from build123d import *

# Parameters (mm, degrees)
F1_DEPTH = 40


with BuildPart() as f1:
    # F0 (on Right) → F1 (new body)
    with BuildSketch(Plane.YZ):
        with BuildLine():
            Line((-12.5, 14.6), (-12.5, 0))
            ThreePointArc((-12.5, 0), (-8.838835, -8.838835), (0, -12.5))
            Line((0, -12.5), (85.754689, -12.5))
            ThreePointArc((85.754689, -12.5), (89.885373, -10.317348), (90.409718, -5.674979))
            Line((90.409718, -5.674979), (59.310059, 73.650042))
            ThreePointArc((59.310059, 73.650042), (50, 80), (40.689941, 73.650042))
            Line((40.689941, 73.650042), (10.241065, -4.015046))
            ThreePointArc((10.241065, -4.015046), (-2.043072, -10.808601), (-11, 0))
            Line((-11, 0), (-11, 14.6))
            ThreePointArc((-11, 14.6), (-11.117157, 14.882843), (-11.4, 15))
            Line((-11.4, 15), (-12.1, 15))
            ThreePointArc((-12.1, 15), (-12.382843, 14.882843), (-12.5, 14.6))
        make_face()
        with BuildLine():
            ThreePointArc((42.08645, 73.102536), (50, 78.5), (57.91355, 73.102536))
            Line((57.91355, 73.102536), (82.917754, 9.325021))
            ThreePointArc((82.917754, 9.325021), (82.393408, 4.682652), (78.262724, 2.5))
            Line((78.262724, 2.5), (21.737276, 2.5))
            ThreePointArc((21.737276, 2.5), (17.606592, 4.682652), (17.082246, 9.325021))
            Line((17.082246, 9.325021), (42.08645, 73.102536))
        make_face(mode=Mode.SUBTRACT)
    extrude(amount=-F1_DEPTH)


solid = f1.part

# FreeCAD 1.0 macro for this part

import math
import FreeCAD as App
import Part
import Sketcher

V = App.Vector

doc = App.newDocument("Part")
body = doc.addObject("PartDesign::Body", "Body")

# Sketch on YZ plane
sketch1 = body.newObject("Sketcher::SketchObject", "Sketch")
sketch1.AttachmentSupport = (doc.getObject("YZ_Plane"), [""])
sketch1.MapMode = "FlatFace"
sketch1.addGeometry([
    Part.LineSegment(V(-12.5, 14.6, 0), V(-12.5, 0, 0)),  # 0
    Part.ArcOfCircle(Part.Circle(V(0, 0, 0), V(0, 0, 1), 12.5), math.radians(180), math.radians(270)),  # 1
    Part.LineSegment(V(0, -12.5, 0), V(85.75, -12.5, 0)),  # 2
    Part.ArcOfCircle(Part.Circle(V(85.75, -7.5, 0), V(0, 0, 1), 5), math.radians(-90), math.radians(21)),  # 3
    Part.LineSegment(V(90.41, -5.67, 0), V(59.31, 73.65, 0)),  # 4
    Part.ArcOfCircle(Part.Circle(V(50, 70, 0), V(0, 0, 1), 10), math.radians(21), math.radians(159)),  # 5
    Part.LineSegment(V(40.69, 73.65, 0), V(10.24, -4.02, 0)),  # 6
    Part.ArcOfCircle(Part.Circle(V(0, 0, 0), V(0, 0, 1), 11), math.radians(-180), math.radians(-21)),  # 7
    Part.LineSegment(V(-11, 0, 0), V(-11, 14.6, 0)),  # 8
    Part.ArcOfCircle(Part.Circle(V(-11.4, 14.6, 0), V(0, 0, 1), 0.4), math.radians(0), math.radians(90)),  # 9
    Part.LineSegment(V(-11.4, 15, 0), V(-12.1, 15, 0)),  # 10
    Part.ArcOfCircle(Part.Circle(V(-12.1, 14.6, 0), V(0, 0, 1), 0.4), math.radians(90), math.radians(180)),  # 11
    Part.LineSegment(V(17.08, 9.33, 0), V(42.09, 73.1, 0)),  # 12
    Part.ArcOfCircle(Part.Circle(V(50, 70, 0), V(0, 0, 1), 8.5), math.radians(21), math.radians(159)),  # 13
    Part.LineSegment(V(57.91, 73.1, 0), V(82.92, 9.33, 0)),  # 14
    Part.ArcOfCircle(Part.Circle(V(78.26, 7.5, 0), V(0, 0, 1), 5), math.radians(-90), math.radians(21)),  # 15
    Part.LineSegment(V(78.26, 2.5, 0), V(21.74, 2.5, 0)),  # 16
    Part.ArcOfCircle(Part.Circle(V(21.74, 7.5, 0), V(0, 0, 1), 5), math.radians(159), math.radians(270)),  # 17
], False)
sketch1.addConstraint([
    Sketcher.Constraint("Tangent", 0, 2, 1, 1),
    Sketcher.Constraint("Tangent", 1, 2, 2, 1),
    Sketcher.Constraint("Tangent", 2, 2, 3, 1),
    Sketcher.Constraint("Tangent", 3, 2, 4, 1),
    Sketcher.Constraint("Tangent", 4, 2, 5, 1),
    Sketcher.Constraint("Tangent", 5, 2, 6, 1),
    Sketcher.Constraint("Tangent", 6, 2, 7, 2),
    Sketcher.Constraint("Tangent", 7, 1, 8, 1),
    Sketcher.Constraint("Coincident", 8, 2, 9, 1),
    Sketcher.Constraint("Coincident", 9, 2, 10, 1),
    Sketcher.Constraint("Coincident", 10, 2, 11, 1),
    Sketcher.Constraint("Coincident", 11, 2, 0, 1),
    Sketcher.Constraint("Tangent", 12, 2, 13, 2),
    Sketcher.Constraint("Tangent", 13, 1, 14, 1),
    Sketcher.Constraint("Tangent", 14, 2, 15, 2),
    Sketcher.Constraint("Tangent", 15, 1, 16, 1),
    Sketcher.Constraint("Tangent", 16, 2, 17, 2),
    Sketcher.Constraint("Tangent", 17, 1, 12, 1),
    Sketcher.Constraint("Vertical", 0),
    Sketcher.Constraint("Horizontal", 2),
    Sketcher.Constraint("Vertical", 8),
    Sketcher.Constraint("Horizontal", 10),
    Sketcher.Constraint("Horizontal", 16),
    Sketcher.Constraint("Coincident", 1, 3, -1, 1),
    Sketcher.Constraint("Coincident", 7, 3, -1, 1),
    Sketcher.Constraint("Coincident", 13, 3, 5, 3),
    Sketcher.Constraint("Equal", 9, 11),
    Sketcher.Constraint("Equal", 3, 15),
    Sketcher.Constraint("Equal", 15, 17),
    Sketcher.Constraint("Parallel", 6, 12),
    Sketcher.Constraint("Parallel", 4, 14),
    Sketcher.Constraint("Horizontal", 4, 2, 5, 2),
    Sketcher.Constraint("Horizontal", 11, 3, 8, 2),
    Sketcher.Constraint("Horizontal", 8, 2, 11, 2),
    Sketcher.Constraint("Vertical", 11, 3, 10, 2),
    Sketcher.Constraint("Radius", 3, 5.0),
    Sketcher.Constraint("Radius", 5, 10.0),
    Sketcher.Constraint("Radius", 7, 11.0),
    Sketcher.Constraint("Radius", 1, 12.499999),
    Sketcher.Constraint("Radius", 9, 0.399999),
    Sketcher.Constraint("Radius", 13, 8.5),
    Sketcher.Constraint("DistanceX", 10, 2, 10, 1, 0.7),
    Sketcher.Constraint("DistanceY", 0, 2, 0, 1, 14.6),
    Sketcher.Constraint("DistanceX", -1, 1, 5, 3, 50.0),
    Sketcher.Constraint("DistanceY", -1, 1, 5, 3, 70.0),
    Sketcher.Constraint("DistanceY", 3, 3, 15, 3, 15.000001),
])
pad1 = body.newObject("PartDesign::Pad", "Pad")
pad1.Profile = sketch1
pad1.Length = 40
pad1.Reversed = True

doc.recompute()
